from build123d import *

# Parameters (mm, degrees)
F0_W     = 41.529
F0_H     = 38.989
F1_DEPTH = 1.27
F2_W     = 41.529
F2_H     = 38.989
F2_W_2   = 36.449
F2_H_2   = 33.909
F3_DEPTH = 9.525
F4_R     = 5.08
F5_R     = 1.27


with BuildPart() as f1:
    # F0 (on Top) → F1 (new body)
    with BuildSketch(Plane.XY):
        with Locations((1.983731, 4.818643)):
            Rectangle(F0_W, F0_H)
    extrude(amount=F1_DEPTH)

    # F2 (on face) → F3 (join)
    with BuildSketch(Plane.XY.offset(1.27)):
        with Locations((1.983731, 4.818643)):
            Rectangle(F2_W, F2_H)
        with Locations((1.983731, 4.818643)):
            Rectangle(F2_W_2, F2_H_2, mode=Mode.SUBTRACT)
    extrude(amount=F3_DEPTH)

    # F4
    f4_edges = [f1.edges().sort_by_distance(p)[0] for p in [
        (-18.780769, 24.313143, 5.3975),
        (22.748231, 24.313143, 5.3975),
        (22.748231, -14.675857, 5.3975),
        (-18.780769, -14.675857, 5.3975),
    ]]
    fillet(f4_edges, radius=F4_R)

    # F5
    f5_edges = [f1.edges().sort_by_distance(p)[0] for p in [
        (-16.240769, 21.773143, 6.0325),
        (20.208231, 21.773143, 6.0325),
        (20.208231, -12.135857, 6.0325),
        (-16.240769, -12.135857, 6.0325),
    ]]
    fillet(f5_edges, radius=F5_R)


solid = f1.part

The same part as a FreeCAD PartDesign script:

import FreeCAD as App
import Part
import Sketcher

V = App.Vector
Q = App.Units.Quantity


def edges_at(feature, points):
    """Names of the edges that pass closest to the given points."""
    edges = feature.Shape.Edges
    near = lambda p: min(range(len(edges)), key=lambda i: edges[i].distToShape(Part.Vertex(*p))[0])
    return sorted({f"Edge{near(p) + 1}" for p in points})


def add_polygon(sketch, points):
    """Adds a closed chain of lines whose ends are joined by coincident constraints."""
    first, n = sketch.GeometryCount, len(points)
    for a, b in zip(points, points[1:] + points[:1]):
        sketch.addGeometry(Part.LineSegment(App.Vector(*a, 0), App.Vector(*b, 0)), False)
    for i in range(n):
        sketch.addConstraint(Sketcher.Constraint("Coincident", first + i, 2, first + (i + 1) % n, 1))

doc = App.newDocument("Part")
body = doc.addObject("PartDesign::Body", "Body")

# Sketch on XY plane
sketch1 = body.newObject("Sketcher::SketchObject", "Sketch")
sketch1.AttachmentSupport = (doc.getObject("XY_Plane"), [""])
sketch1.MapMode = "FlatFace"
add_polygon(sketch1, [(-19, 24), (-19, -15), (23, -15), (23, 24)])  # lines 0-3
sketch1.addConstraint(Sketcher.Constraint("Vertical", 0))
sketch1.addConstraint(Sketcher.Constraint("Horizontal", 1))
sketch1.addConstraint(Sketcher.Constraint("Vertical", 2))
sketch1.addConstraint(Sketcher.Constraint("Horizontal", 3))
sketch1.addConstraint(Sketcher.Constraint("DistanceX", 1, 1, 1, 2, Q("1.635 in")))
sketch1.addConstraint(Sketcher.Constraint("DistanceY", 0, 2, 0, 1, Q("1.535 in")))
sketch1.addConstraint(Sketcher.Constraint("DistanceX", 0, 2, -1, 1, Q("18.780769 mm")))
sketch1.addConstraint(Sketcher.Constraint("DistanceY", 0, 2, -1, 1, Q("14.675857 mm")))
pad1 = body.newObject("PartDesign::Pad", "Pad")
pad1.Profile = sketch1
pad1.Length = Q("0.05 in")

# Sketch on XY plane
sketch2 = body.newObject("Sketcher::SketchObject", "Sketch001")
sketch2.AttachmentSupport = (doc.getObject("XY_Plane"), [""])
sketch2.MapMode = "FlatFace"
sketch2.AttachmentOffset = App.Placement(V(0, 0, 0.05 * 25.4), App.Rotation())
add_polygon(sketch2, [(-19, 24), (-19, -15), (23, -15), (23, 24)])  # lines 0-3
add_polygon(sketch2, [(20, -12), (-16, -12), (-16, 22), (20, 22)])  # lines 4-7
sketch2.addConstraint(Sketcher.Constraint("Vertical", 0))
sketch2.addConstraint(Sketcher.Constraint("Horizontal", 1))
sketch2.addConstraint(Sketcher.Constraint("Vertical", 2))
sketch2.addConstraint(Sketcher.Constraint("Horizontal", 3))
sketch2.addConstraint(Sketcher.Constraint("Horizontal", 4))
sketch2.addConstraint(Sketcher.Constraint("Vertical", 5))
sketch2.addConstraint(Sketcher.Constraint("Horizontal", 6))
sketch2.addConstraint(Sketcher.Constraint("Vertical", 7))
sketch2.addConstraint(Sketcher.Constraint("DistanceX", 0, 2, 4, 2, Q("0.1 in")))
sketch2.addConstraint(Sketcher.Constraint("DistanceY", 0, 2, 4, 2, Q("0.1 in")))
sketch2.addConstraint(Sketcher.Constraint("DistanceY", 5, 2, 3, 2, Q("0.1 in")))
sketch2.addConstraint(Sketcher.Constraint("DistanceX", 6, 2, 2, 2, Q("0.1 in")))
sketch2.addConstraint(Sketcher.Constraint("DistanceX", 1, 1, 1, 2, Q("1.635 in")))
sketch2.addConstraint(Sketcher.Constraint("DistanceY", 0, 2, 0, 1, Q("1.535 in")))
sketch2.addConstraint(Sketcher.Constraint("DistanceX", 0, 2, -1, 1, Q("18.780769 mm")))
sketch2.addConstraint(Sketcher.Constraint("DistanceY", 0, 2, -1, 1, Q("14.675857 mm")))
pad2 = body.newObject("PartDesign::Pad", "Pad001")
pad2.Profile = sketch2
pad2.Length = Q("0.375 in")
doc.recompute()

fillet = body.newObject("PartDesign::Fillet", "Fillet")
fillet.Base = (pad2, edges_at(pad2, [
    (-18.781, 24.313, 5.397),
    (22.748, 24.313, 5.397),
    (22.748, -14.676, 5.397),
    (-18.781, -14.676, 5.397),
]))
fillet.Radius = Q("0.2 in")
doc.recompute()

fillet2 = body.newObject("PartDesign::Fillet", "Fillet001")
fillet2.Base = (fillet, edges_at(fillet, [
    (-16.241, 21.773, 6.032),
    (20.208, 21.773, 6.032),
    (20.208, -12.136, 6.032),
    (-16.241, -12.136, 6.032),
]))
fillet2.Radius = Q("0.05 in")

doc.recompute()
